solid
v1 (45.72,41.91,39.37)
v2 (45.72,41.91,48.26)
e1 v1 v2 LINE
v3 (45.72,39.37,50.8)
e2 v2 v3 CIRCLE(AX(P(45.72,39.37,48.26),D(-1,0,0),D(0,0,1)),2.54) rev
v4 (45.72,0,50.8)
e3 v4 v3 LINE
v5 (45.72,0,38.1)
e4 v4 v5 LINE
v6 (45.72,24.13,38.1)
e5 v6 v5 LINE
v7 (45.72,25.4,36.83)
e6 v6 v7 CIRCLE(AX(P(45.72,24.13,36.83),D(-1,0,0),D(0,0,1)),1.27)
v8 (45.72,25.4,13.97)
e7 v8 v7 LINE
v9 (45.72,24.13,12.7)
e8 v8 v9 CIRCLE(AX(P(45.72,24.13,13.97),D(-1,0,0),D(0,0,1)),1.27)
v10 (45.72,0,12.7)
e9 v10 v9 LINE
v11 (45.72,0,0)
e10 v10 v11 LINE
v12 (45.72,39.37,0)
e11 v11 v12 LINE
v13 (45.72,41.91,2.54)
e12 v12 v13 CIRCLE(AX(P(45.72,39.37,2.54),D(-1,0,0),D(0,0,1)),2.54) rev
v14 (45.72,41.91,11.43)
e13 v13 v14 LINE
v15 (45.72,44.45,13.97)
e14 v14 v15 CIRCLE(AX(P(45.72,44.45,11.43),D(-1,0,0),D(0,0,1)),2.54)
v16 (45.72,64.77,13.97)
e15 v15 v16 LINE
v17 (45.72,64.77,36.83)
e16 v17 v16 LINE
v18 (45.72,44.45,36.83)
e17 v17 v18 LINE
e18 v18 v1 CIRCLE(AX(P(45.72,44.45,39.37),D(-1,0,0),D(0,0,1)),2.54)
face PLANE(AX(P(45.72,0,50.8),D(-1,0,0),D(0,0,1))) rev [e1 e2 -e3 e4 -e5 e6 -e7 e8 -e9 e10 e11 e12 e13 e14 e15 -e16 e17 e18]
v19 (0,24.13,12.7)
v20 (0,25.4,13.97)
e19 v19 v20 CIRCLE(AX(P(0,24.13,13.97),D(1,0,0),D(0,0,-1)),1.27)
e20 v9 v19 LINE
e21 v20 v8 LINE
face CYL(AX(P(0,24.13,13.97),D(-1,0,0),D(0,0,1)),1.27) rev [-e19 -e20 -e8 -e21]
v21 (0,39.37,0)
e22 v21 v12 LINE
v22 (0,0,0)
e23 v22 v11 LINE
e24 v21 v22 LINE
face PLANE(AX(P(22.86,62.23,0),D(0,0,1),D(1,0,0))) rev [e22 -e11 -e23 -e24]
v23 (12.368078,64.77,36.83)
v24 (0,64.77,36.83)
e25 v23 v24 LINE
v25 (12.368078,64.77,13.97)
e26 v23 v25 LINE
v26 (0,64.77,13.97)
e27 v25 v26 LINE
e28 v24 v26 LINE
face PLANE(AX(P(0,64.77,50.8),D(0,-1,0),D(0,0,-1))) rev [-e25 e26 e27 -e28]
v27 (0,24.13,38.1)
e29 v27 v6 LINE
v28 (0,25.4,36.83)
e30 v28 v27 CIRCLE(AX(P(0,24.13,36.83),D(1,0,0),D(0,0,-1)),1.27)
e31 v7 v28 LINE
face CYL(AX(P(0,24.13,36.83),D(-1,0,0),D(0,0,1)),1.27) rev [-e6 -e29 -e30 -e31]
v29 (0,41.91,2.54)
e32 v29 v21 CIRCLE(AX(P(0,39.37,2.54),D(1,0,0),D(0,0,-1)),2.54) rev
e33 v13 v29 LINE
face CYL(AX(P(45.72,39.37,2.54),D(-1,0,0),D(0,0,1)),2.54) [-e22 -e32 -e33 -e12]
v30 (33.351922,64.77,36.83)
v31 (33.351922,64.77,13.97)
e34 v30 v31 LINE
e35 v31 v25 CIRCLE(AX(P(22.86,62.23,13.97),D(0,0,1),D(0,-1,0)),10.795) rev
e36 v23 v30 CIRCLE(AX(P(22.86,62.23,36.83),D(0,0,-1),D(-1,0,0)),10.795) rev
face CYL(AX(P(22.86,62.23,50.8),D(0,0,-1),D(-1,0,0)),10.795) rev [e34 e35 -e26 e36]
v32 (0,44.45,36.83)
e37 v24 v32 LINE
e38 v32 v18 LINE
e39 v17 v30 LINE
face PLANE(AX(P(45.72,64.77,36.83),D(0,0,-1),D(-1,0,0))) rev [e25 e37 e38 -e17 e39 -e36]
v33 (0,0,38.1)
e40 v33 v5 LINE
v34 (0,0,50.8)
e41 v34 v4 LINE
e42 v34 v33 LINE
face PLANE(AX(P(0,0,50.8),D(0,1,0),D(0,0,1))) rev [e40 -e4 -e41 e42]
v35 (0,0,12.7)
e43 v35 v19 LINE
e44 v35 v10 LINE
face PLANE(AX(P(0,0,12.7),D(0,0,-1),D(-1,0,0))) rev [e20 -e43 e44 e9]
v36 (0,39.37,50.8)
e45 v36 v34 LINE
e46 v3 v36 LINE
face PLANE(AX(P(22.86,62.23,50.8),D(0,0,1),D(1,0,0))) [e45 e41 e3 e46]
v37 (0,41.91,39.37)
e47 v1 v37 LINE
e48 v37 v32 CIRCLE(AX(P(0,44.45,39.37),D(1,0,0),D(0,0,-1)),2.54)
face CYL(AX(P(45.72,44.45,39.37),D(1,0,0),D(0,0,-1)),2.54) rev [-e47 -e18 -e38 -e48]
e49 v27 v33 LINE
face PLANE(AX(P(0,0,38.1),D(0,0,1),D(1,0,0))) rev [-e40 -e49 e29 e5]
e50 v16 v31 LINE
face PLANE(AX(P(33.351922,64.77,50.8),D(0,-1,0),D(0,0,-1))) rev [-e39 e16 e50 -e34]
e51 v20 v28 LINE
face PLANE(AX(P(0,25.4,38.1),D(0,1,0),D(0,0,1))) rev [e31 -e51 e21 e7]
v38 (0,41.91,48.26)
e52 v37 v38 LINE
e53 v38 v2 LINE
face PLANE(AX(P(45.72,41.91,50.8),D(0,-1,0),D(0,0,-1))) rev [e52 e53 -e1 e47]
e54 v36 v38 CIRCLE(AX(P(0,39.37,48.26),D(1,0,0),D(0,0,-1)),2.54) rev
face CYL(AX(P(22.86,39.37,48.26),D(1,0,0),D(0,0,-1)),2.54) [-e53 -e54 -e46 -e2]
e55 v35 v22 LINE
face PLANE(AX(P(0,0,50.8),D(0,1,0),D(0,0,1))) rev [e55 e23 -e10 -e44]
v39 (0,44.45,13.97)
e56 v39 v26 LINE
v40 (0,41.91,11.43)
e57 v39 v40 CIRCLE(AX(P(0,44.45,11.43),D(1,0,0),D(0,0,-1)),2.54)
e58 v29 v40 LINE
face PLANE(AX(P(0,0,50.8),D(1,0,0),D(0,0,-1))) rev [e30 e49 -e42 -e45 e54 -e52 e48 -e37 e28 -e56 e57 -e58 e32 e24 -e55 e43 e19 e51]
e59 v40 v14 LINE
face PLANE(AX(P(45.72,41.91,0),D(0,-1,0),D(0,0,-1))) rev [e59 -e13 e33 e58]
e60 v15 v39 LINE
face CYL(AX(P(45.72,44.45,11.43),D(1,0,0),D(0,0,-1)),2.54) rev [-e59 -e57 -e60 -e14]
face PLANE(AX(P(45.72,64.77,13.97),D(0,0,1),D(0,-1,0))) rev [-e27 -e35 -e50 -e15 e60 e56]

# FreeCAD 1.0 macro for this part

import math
import FreeCAD as App
import Part
import Sketcher
Q = App.Units.Quantity


def edges_at(feature, points):
    """Names of the edges that pass closest to the given points."""
    edges = feature.Shape.Edges
    near = lambda p: min(range(len(edges)), key=lambda i: edges[i].distToShape(Part.Vertex(*p))[0])
    return sorted({f"Edge{near(p) + 1}" for p in points})


def add_polygon(sketch, points):
    """Adds a closed chain of lines whose ends are joined by coincident constraints."""
    first, n = sketch.GeometryCount, len(points)
    for a, b in zip(points, points[1:] + points[:1]):
        sketch.addGeometry(Part.LineSegment(App.Vector(*a, 0), App.Vector(*b, 0)), False)
    for i in range(n):
        sketch.addConstraint(Sketcher.Constraint("Coincident", first + i, 2, first + (i + 1) % n, 1))

doc = App.newDocument("Part")
body = doc.addObject("PartDesign::Body", "Body")

sketch1 = doc.addObject("Sketcher::SketchObject", "Sketch")
body.addObject(sketch1)
sketch1.AttachmentSupport = (doc.XY_Plane, [""])
sketch1.MapMode = "FlatFace"
sketch1.addGeometry(Part.LineSegment(App.Vector(46, 65, 0), App.Vector(33, 65, 0)), False)
sketch1.addGeometry(Part.ArcOfCircle(Part.Circle(App.Vector(23, 62, 0), App.Vector(0, 0, 1), 11), math.radians(166), math.radians(374)), False)
sketch1.addGeometry(Part.LineSegment(App.Vector(12, 65, 0), App.Vector(0, 65, 0)), False)
sketch1.addGeometry(Part.LineSegment(App.Vector(0, 65, 0), App.Vector(0, 0, 0)), False)
sketch1.addGeometry(Part.LineSegment(App.Vector(0, 0, 0), App.Vector(46, 0, 0)), False)
sketch1.addGeometry(Part.LineSegment(App.Vector(46, 0, 0), App.Vector(46, 65, 0)), False)
sketch1.addConstraint(Sketcher.Constraint("Coincident", 0, 2, 1, 2))
sketch1.addConstraint(Sketcher.Constraint("Coincident", 1, 1, 2, 1))
sketch1.addConstraint(Sketcher.Constraint("Coincident", 2, 2, 3, 1))
sketch1.addConstraint(Sketcher.Constraint("Coincident", 3, 2, 4, 1))
sketch1.addConstraint(Sketcher.Constraint("Coincident", 4, 2, 5, 1))
sketch1.addConstraint(Sketcher.Constraint("Coincident", 5, 2, 0, 1))
sketch1.addConstraint(Sketcher.Constraint("Horizontal", 0))
sketch1.addConstraint(Sketcher.Constraint("Horizontal", 2))
sketch1.addConstraint(Sketcher.Constraint("Vertical", 3))
sketch1.addConstraint(Sketcher.Constraint("Horizontal", 4))
sketch1.addConstraint(Sketcher.Constraint("Vertical", 5))
sketch1.addConstraint(Sketcher.Constraint("Coincident", 3, 2, -1, 1))
sketch1.addConstraint(Sketcher.Constraint("Horizontal", 0, 2, 1, 1))
sketch1.addConstraint(Sketcher.Constraint("Equal", 0, 2))
sketch1.addConstraint(Sketcher.Constraint("DistanceX", 4, 1, 4, 2, Q("1.8 in")))
sketch1.addConstraint(Sketcher.Constraint("Radius", 1, Q("0.425 in")))
sketch1.addConstraint(Sketcher.Constraint("DistanceY", 3, 2, 3, 1, Q("2.55 in")))
sketch1.addConstraint(Sketcher.Constraint("DistanceY", 1, 3, 0, 2, Q("0.1 in")))
pad1 = doc.addObject("PartDesign::Pad", "Pad")
body.addObject(pad1)
pad1.Profile = sketch1
pad1.Length = Q("2 in")

sketch2 = doc.addObject("Sketcher::SketchObject", "Sketch001")
body.addObject(sketch2)
sketch2.AttachmentSupport = (doc.YZ_Plane, [""])
sketch2.MapMode = "FlatFace"
sketch2.AttachmentOffset = App.Placement(App.Vector(0, 0, 1.8 * 25.4), App.Rotation())
add_polygon(sketch2, [(25, 38), (0, 38), (0, 13), (25, 13)])
sketch2.addConstraint(Sketcher.Constraint("Horizontal", 0))
sketch2.addConstraint(Sketcher.Constraint("Vertical", 1))
sketch2.addConstraint(Sketcher.Constraint("Horizontal", 2))
sketch2.addConstraint(Sketcher.Constraint("Vertical", 3))
sketch2.addConstraint(Sketcher.Constraint("PointOnObject", 0, 2, -2))
sketch2.addConstraint(Sketcher.Constraint("Equal", 2, 1))
sketch2.addConstraint(Sketcher.Constraint("DistanceX", 0, 2, 0, 1, Q("1 in")))
sketch2.addConstraint(Sketcher.Constraint("DistanceY", -1, 1, 0, 2, Q("1.5 in")))
pocket1 = doc.addObject("PartDesign::Pocket", "Pocket")
body.addObject(pocket1)
pocket1.Profile = sketch2
pocket1.Type = "ThroughAll"
doc.recompute()

fillet = doc.addObject("PartDesign::Fillet", "Fillet")
body.addObject(fillet)
fillet.Base = (pocket1, edges_at(pocket1, [(22.86, 25.4, 38.1), (22.86, 25.4, 12.7)]))
fillet.Radius = Q("0.05 in")

sketch3 = doc.addObject("Sketcher::SketchObject", "Sketch002")
body.addObject(sketch3)
sketch3.AttachmentSupport = (doc.YZ_Plane, [""])
sketch3.MapMode = "FlatFace"
add_polygon(sketch3, [(65, 37), (42, 37), (42, 51), (65, 51)])
add_polygon(sketch3, [(65, 0), (42, 0), (42, 14), (65, 14)])
sketch3.addConstraint(Sketcher.Constraint("Horizontal", 0))
sketch3.addConstraint(Sketcher.Constraint("Vertical", 1))
sketch3.addConstraint(Sketcher.Constraint("Horizontal", 2))
sketch3.addConstraint(Sketcher.Constraint("Vertical", 3))
sketch3.addConstraint(Sketcher.Constraint("Horizontal", 4))
sketch3.addConstraint(Sketcher.Constraint("Vertical", 5))
sketch3.addConstraint(Sketcher.Constraint("Horizontal", 6))
sketch3.addConstraint(Sketcher.Constraint("Vertical", 7))
sketch3.addConstraint(Sketcher.Constraint("PointOnObject", 4, 2, -1))
sketch3.addConstraint(Sketcher.Constraint("Vertical", 1, 2, 4, 2))
sketch3.addConstraint(Sketcher.Constraint("Vertical", 3, 2, 6, 2))
sketch3.addConstraint(Sketcher.Constraint("Equal", 3, 5))
sketch3.addConstraint(Sketcher.Constraint("DistanceX", 0, 2, 0, 1, Q("0.9 in")))
sketch3.addConstraint(Sketcher.Constraint("DistanceY", -1, 1, 1, 2, Q("2 in")))
sketch3.addConstraint(Sketcher.Constraint("DistanceY", 1, 1, 1, 2, Q("0.55 in")))
sketch3.addConstraint(Sketcher.Constraint("DistanceX", -1, 1, 0, 2, Q("1.65 in")))
pocket2 = doc.addObject("PartDesign::Pocket", "Pocket001")
body.addObject(pocket2)
pocket2.Profile = sketch3
pocket2.Type = "ThroughAll"
pocket2.Reversed = True
doc.recompute()

fillet2 = doc.addObject("PartDesign::Fillet", "Fillet001")
body.addObject(fillet2)
fillet2.Base = (pocket2, edges_at(pocket2, [
    (22.86, 41.91, 36.83),
    (22.86, 41.91, 50.8),
    (22.86, 41.91, 0),
    (22.86, 41.91, 13.97),
]))
fillet2.Radius = Q("0.1 in")

doc.recompute()
